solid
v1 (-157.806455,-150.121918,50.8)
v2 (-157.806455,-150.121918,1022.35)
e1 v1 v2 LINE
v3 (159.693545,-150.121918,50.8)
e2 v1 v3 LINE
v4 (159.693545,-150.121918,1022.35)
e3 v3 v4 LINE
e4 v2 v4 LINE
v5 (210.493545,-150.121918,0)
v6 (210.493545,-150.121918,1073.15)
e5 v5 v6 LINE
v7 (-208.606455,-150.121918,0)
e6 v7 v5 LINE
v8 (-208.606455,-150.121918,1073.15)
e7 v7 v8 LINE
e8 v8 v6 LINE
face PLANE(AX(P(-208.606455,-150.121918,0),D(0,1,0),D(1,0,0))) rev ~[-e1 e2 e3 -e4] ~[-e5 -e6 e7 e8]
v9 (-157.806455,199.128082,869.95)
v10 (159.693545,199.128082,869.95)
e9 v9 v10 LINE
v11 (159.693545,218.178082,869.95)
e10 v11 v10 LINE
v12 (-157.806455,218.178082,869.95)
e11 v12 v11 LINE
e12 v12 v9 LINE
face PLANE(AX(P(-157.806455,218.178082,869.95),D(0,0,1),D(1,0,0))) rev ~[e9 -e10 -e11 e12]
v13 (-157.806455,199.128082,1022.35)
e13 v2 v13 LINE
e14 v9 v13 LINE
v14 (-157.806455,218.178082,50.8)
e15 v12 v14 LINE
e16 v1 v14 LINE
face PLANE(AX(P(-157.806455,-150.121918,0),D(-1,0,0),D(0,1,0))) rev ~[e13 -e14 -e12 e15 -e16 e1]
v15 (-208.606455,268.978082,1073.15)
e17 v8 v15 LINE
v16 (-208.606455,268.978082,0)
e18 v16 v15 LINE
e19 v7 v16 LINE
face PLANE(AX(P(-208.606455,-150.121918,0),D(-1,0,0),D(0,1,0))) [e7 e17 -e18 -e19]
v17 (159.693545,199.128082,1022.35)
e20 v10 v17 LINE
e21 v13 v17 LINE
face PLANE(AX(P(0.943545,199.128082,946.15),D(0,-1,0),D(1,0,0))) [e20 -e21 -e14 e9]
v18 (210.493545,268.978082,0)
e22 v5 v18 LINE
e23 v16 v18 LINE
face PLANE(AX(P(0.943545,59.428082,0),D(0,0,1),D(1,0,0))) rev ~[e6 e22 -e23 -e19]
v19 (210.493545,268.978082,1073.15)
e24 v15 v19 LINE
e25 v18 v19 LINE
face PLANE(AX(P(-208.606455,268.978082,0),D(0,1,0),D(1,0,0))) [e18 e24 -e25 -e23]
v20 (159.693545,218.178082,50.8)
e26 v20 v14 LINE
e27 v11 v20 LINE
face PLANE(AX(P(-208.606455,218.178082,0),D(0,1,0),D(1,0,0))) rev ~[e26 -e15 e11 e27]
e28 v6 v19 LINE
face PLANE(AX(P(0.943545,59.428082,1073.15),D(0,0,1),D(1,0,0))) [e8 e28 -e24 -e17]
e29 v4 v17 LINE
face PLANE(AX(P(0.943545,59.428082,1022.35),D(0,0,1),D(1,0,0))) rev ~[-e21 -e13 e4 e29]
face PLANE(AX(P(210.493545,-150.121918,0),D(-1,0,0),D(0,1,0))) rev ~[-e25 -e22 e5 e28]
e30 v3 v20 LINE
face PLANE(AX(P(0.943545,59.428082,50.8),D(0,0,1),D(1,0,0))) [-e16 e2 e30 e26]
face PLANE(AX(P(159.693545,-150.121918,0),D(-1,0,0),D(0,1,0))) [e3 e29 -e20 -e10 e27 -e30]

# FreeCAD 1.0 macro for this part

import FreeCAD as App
import Part
import Sketcher
from FreeCAD import Vector
Q = App.Units.Quantity


def faces_at(feature, points):
    """Names of the faces that lie closest to the given points."""
    faces = feature.Shape.Faces
    near = lambda p: min(range(len(faces)), key=lambda i: faces[i].distToShape(Part.Vertex(*p))[0])
    return sorted({f"Face{near(p) + 1}" for p in points})


def add_polygon(sketch, points):
    """Adds a closed chain of lines whose ends are joined by coincident constraints."""
    first, n = sketch.GeometryCount, len(points)
    for a, b in zip(points, points[1:] + points[:1]):
        sketch.addGeometry(Part.LineSegment(App.Vector(*a, 0), App.Vector(*b, 0)), False)
    for i in range(n):
        sketch.addConstraint(Sketcher.Constraint("Coincident", first + i, 2, first + (i + 1) % n, 1))

doc = App.newDocument("Part")
body = doc.addObject("PartDesign::Body", "Body")

sketch1 = body.newObject("Sketcher::SketchObject", "Sketch")
sketch1.AttachmentSupport = (doc.getObject("XY_Plane"), [""])
sketch1.MapMode = "FlatFace"
add_polygon(sketch1, [(-209, 269), (-209, -150), (210, -150), (210, 269)])
sketch1.addConstraint([
    Sketcher.Constraint("Vertical", 0),
    Sketcher.Constraint("Horizontal", 1),
    Sketcher.Constraint("Vertical", 2),
    Sketcher.Constraint("Horizontal", 3),
    Sketcher.Constraint("Equal", 3, 0),
    Sketcher.Constraint("DistanceX", 1, 1, 1, 2, Q("16.5 in")),
    Sketcher.Constraint("DistanceY", 0, 2, -1, 1, Q("150.121918 mm")),
    Sketcher.Constraint("DistanceX", 0, 2, -1, 1, Q("208.606455 mm")),
])
pad1 = body.newObject("PartDesign::Pad", "Pad")
pad1.Profile = sketch1
pad1.Length = Q("42.25 in")
doc.recompute()

thickness = body.newObject("PartDesign::Thickness", "Thickness")
thickness.Base = (pad1, faces_at(pad1, [(0.944, -150.122, 536.575)]))
thickness.Value = Q("2 in")
thickness.Reversed = True
thickness.Join = "Arc"

sketch2 = body.newObject("Sketcher::SketchObject", "Sketch001")
sketch2.AttachmentSupport = (doc.getObject("XZ_Plane"), [""])
sketch2.MapMode = "FlatFace"
sketch2.AttachmentOffset = App.Placement(Vector(0, 0, -218.178082), App.Rotation())
add_polygon(sketch2, [(-158, 1022), (-158, 870), (160, 870), (160, 1022)])
sketch2.addConstraint([
    Sketcher.Constraint("Vertical", 0),
    Sketcher.Constraint("Horizontal", 1),
    Sketcher.Constraint("Vertical", 2),
    Sketcher.Constraint("Horizontal", 3),
    Sketcher.Constraint("DistanceY", 0, 2, 0, 1, Q("6 in")),
    Sketcher.Constraint("DistanceX", 1, 1, 1, 2, Q("12.5 in")),
    Sketcher.Constraint("DistanceY", -1, 1, 0, 2, Q("34.25 in")),
    Sketcher.Constraint("DistanceX", 0, 2, -1, 1, Q("157.806455 mm")),
])
pad2 = body.newObject("PartDesign::Pad", "Pad001")
pad2.Profile = sketch2
pad2.Length = Q("0.75 in")

doc.recompute()
